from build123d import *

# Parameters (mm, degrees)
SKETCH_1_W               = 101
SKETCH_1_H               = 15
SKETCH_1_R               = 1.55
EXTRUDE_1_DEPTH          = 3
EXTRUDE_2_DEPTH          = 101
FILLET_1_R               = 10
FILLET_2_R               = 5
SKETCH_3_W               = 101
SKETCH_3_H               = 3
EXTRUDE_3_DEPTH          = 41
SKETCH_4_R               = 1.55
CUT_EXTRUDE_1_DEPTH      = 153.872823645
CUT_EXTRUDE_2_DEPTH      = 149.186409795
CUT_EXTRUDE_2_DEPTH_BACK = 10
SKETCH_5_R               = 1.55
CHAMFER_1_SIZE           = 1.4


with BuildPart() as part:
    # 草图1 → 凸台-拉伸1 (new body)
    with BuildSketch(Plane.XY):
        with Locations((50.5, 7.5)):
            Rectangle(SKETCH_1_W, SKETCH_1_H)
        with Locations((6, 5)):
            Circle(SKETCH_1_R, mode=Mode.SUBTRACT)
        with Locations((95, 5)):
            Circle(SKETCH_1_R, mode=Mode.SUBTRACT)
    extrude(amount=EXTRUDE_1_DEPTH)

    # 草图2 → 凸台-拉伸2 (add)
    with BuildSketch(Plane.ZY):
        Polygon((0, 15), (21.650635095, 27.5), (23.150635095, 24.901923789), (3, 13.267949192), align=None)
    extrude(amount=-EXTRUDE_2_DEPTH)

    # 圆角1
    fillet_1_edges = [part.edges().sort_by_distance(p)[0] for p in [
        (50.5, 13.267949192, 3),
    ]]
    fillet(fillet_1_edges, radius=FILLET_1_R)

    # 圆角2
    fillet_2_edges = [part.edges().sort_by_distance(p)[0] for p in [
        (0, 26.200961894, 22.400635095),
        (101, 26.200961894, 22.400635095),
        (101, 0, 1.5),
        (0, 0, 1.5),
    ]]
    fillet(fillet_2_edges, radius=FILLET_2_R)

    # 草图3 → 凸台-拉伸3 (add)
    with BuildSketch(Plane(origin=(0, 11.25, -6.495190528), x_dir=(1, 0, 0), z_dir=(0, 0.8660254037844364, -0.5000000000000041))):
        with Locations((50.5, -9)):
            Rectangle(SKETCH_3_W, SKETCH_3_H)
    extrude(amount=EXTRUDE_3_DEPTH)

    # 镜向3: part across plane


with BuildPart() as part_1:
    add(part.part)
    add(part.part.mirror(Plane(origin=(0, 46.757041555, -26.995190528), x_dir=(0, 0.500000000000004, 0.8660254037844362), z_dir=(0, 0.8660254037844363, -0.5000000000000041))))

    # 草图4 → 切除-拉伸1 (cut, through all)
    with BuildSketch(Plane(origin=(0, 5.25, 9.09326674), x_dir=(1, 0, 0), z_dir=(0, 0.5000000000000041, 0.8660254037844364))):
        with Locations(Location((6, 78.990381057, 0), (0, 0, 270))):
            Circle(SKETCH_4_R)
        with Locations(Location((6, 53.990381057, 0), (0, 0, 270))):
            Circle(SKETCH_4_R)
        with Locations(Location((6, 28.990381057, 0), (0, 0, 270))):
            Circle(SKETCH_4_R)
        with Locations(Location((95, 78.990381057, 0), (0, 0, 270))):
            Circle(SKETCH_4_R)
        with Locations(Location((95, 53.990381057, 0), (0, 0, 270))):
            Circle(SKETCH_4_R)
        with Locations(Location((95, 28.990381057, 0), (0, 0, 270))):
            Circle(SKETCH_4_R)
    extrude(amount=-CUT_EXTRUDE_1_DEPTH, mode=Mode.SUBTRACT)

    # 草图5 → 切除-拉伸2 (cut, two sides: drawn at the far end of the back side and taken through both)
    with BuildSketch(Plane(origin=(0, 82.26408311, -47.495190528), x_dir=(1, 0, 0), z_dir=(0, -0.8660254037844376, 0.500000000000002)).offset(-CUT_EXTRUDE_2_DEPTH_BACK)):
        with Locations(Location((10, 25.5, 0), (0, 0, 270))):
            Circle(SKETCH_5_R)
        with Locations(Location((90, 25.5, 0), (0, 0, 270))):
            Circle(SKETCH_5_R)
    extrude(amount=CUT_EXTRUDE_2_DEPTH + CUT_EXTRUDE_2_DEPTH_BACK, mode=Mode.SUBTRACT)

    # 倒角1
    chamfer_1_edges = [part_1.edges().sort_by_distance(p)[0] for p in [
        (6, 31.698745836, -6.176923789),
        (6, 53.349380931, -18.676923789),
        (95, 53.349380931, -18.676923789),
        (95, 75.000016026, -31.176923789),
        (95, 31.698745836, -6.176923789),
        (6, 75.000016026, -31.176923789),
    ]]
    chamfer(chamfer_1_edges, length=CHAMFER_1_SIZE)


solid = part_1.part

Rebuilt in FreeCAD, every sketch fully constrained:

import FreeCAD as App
import Part
import Sketcher
Q = App.Units.Quantity


def edges_at(feature, points):
    """Names of the edges that pass closest to the given points."""
    edges = feature.Shape.Edges
    near = lambda p: min(range(len(edges)), key=lambda i: edges[i].distToShape(Part.Vertex(*p))[0])
    return sorted({f"Edge{near(p) + 1}" for p in points})

doc = App.newDocument("Part")
params = doc.addObject("Spreadsheet::Sheet", "Params")
for row, (alias, value) in enumerate([
    ("sketch1_diameter", "3.1 mm"),
    ("sketch1_width", "101 mm"),
    ("sketch1_height", "15 mm"),
    ("pad1_length", "3 mm"),
    ("sketch2_length", "25 mm"),
    ("sketch2_length2", "3 mm"),
    ("pad2_length", "101 mm"),
    ("fillet_radius", "10 mm"),
    ("fillet2_radius", "5 mm"),
    ("sketch3_width", "101 mm"),
    ("sketch3_height", "3 mm"),
    ("pad3_length", "41 mm"),
    ("sketch4_diameter", "3.1 mm"),
    ("sketch5_diameter", "3.1 mm"),
    ("chamfer_size", "1.4 mm"),
], start=1):
    params.set(f"A{row}", alias)
    params.set(f"B{row}", "=" + value)
    params.setAlias(f"B{row}", alias)

body = doc.addObject("PartDesign::Body", "Body")

# Sketch on XY plane
sketch1 = doc.addObject("Sketcher::SketchObject", "Sketch")
body.addObject(sketch1)
sketch1.AttachmentSupport = (doc.XY_Plane, [""])
sketch1.MapMode = "FlatFace"
sketch1.addGeometry([
    Part.LineSegment(App.Vector(0, 15, 0), App.Vector(0, 0, 0)),  # 0
    Part.LineSegment(App.Vector(0, 0, 0), App.Vector(101, 0, 0)),  # 1
    Part.LineSegment(App.Vector(101, 0, 0), App.Vector(101, 15, 0)),  # 2
    Part.LineSegment(App.Vector(101, 15, 0), App.Vector(0, 15, 0)),  # 3
    Part.Circle(App.Vector(6, 5, 0), App.Vector(0, 0, 1), 1.55),  # 4
    Part.Circle(App.Vector(95, 5, 0), App.Vector(0, 0, 1), 1.55),  # 5
], False)
sketch1.addConstraint([
    Sketcher.Constraint("Coincident", 0, 2, 1, 1),
    Sketcher.Constraint("Coincident", 1, 2, 2, 1),
    Sketcher.Constraint("Coincident", 2, 2, 3, 1),
    Sketcher.Constraint("Coincident", 3, 2, 0, 1),
    Sketcher.Constraint("Vertical", 0),
    Sketcher.Constraint("Horizontal", 1),
    Sketcher.Constraint("Vertical", 2),
    Sketcher.Constraint("Horizontal", 3),
    Sketcher.Constraint("Coincident", 0, 2, -1, 1),
    Sketcher.Constraint("Equal", 4, 5),
    Sketcher.Constraint("Horizontal", 4, 3, 5, 3),
    Sketcher.Constraint("Diameter", 4, Q("3.1 mm")),
    Sketcher.Constraint("DistanceX", 1, 1, 1, 2, Q("101 mm")),
    Sketcher.Constraint("DistanceY", 0, 2, 0, 1, Q("15 mm")),
    Sketcher.Constraint("DistanceX", -1, 1, 4, 3, Q("6 mm")),
    Sketcher.Constraint("DistanceY", -1, 1, 4, 3, Q("5 mm")),
    Sketcher.Constraint("DistanceX", -1, 1, 5, 3, Q("95 mm")),
])
sketch1.setExpression("Constraints[11]", "Params.sketch1_diameter")
sketch1.setExpression("Constraints[12]", "Params.sketch1_width")
sketch1.setExpression("Constraints[13]", "Params.sketch1_height")
pad1 = doc.addObject("PartDesign::Pad", "Pad")
body.addObject(pad1)
pad1.Profile = sketch1
pad1.setExpression("Length", "Params.pad1_length")

# Sketch on YZ plane
sketch2 = doc.addObject("Sketcher::SketchObject", "Sketch001")
body.addObject(sketch2)
sketch2.AttachmentSupport = (doc.YZ_Plane, [""])
sketch2.MapMode = "FlatFace"
sketch2.addGeometry([
    Part.LineSegment(App.Vector(27.5, 21.650635, 0), App.Vector(15, 0, 0)),
    Part.LineSegment(App.Vector(15, 0, 0), App.Vector(13.267949, 3, 0)),
    Part.LineSegment(App.Vector(13.267949, 3, 0), App.Vector(24.901924, 23.150635, 0)),
    Part.LineSegment(App.Vector(24.901924, 23.150635, 0), App.Vector(27.5, 21.650635, 0)),
], False)
sketch2.addConstraint([
    Sketcher.Constraint("Coincident", 0, 2, 1, 1),
    Sketcher.Constraint("Coincident", 1, 2, 2, 1),
    Sketcher.Constraint("Coincident", 2, 2, 3, 1),
    Sketcher.Constraint("Coincident", 3, 2, 0, 1),
    Sketcher.Constraint("PointOnObject", 0, 2, -1),
    Sketcher.Constraint("Parallel", 0, 2),
    Sketcher.Constraint("Perpendicular", 2, 3),
    Sketcher.Constraint("Angle", 0, Q("-120 deg")),
    Sketcher.Constraint("Angle", 1, Q("120 deg")),
    Sketcher.Constraint("Distance", 0, Q("25 mm")),
    Sketcher.Constraint("Distance", 3, Q("3 mm")),
    Sketcher.Constraint("DistanceX", -1, 1, 0, 2, Q("15 mm")),
])
sketch2.setExpression("Constraints[9]", "Params.sketch2_length")
sketch2.setExpression("Constraints[10]", "Params.sketch2_length2")
pad2 = doc.addObject("PartDesign::Pad", "Pad001")
body.addObject(pad2)
pad2.Profile = sketch2
pad2.setExpression("Length", "Params.pad2_length")
doc.recompute()

fillet = doc.addObject("PartDesign::Fillet", "Fillet")
body.addObject(fillet)
fillet.Base = (pad2, edges_at(pad2, [(50.5, 13.268, 3)]))
fillet.setExpression("Radius", "Params.fillet_radius")
doc.recompute()

fillet2 = doc.addObject("PartDesign::Fillet", "Fillet001")
body.addObject(fillet2)
fillet2.Base = (fillet, edges_at(fillet, [
    (0, 26.201, 22.401),
    (101, 26.201, 22.401),
    (101, 0, 1.5),
    (0, 0, 1.5),
]))
fillet2.setExpression("Radius", "Params.fillet2_radius")

# Sketch on an angled plane
sketch3 = doc.addObject("Sketcher::SketchObject", "Sketch002")
body.addObject(sketch3)
sketch3.Placement = App.Placement(App.Vector(0, 11.25, -6.495191), App.Rotation(App.Vector(1, 0, 0), App.Vector(0, -0.5, -0.866025404), App.Vector(0, 0.866025404, -0.5), "ZXY"))
sketch3.addGeometry([
    Part.LineSegment(App.Vector(0, -7.5, 0), App.Vector(0, -10.5, 0)),
    Part.LineSegment(App.Vector(0, -10.5, 0), App.Vector(101, -10.5, 0)),
    Part.LineSegment(App.Vector(101, -10.5, 0), App.Vector(101, -7.5, 0)),
    Part.LineSegment(App.Vector(101, -7.5, 0), App.Vector(0, -7.5, 0)),
], False)
sketch3.addConstraint([
    Sketcher.Constraint("Coincident", 0, 2, 1, 1),
    Sketcher.Constraint("Coincident", 1, 2, 2, 1),
    Sketcher.Constraint("Coincident", 2, 2, 3, 1),
    Sketcher.Constraint("Coincident", 3, 2, 0, 1),
    Sketcher.Constraint("Vertical", 0),
    Sketcher.Constraint("Horizontal", 1),
    Sketcher.Constraint("Vertical", 2),
    Sketcher.Constraint("Horizontal", 3),
    Sketcher.Constraint("PointOnObject", 0, 2, -2),
    Sketcher.Constraint("DistanceX", 1, 1, 1, 2, Q("101 mm")),
    Sketcher.Constraint("DistanceY", 0, 2, 0, 1, Q("3 mm")),
    Sketcher.Constraint("DistanceY", 0, 2, -1, 1, Q("10.5 mm")),
])
sketch3.setExpression("Constraints[9]", "Params.sketch3_width")
sketch3.setExpression("Constraints[10]", "Params.sketch3_height")
pad3 = doc.addObject("PartDesign::Pad", "Pad002")
body.addObject(pad3)
pad3.Profile = sketch3
pad3.setExpression("Length", "Params.pad3_length")
body2 = doc.addObject("PartDesign::Body", "Body001")
doc.recompute()

body2.BaseFeature = body
doc.recompute()

mirroring = doc.addObject("Part::Mirroring", "Mirroring")
mirroring.Source = body
mirroring.Base = App.Vector(0, 46.757042, -26.995191)
mirroring.Normal = App.Vector(0, 0.866025404, -0.5)
body3 = doc.addObject("PartDesign::Body", "Body002")
body3.BaseFeature = mirroring
boolean = doc.addObject("PartDesign::Boolean", "Boolean")
body2.addObject(boolean)
boolean.Type = "Fuse"
boolean.addObjects([body3])
doc.recompute()

# Sketch on an angled plane
sketch4 = doc.addObject("Sketcher::SketchObject", "Sketch003")
body2.addObject(sketch4)
sketch4.Placement = App.Placement(App.Vector(0, 5.25, 9.093267), App.Rotation(App.Vector(1, 0, 0), App.Vector(0, 0.866025404, -0.5), App.Vector(0, 0.5, 0.866025404), "ZXY"))
sketch4.addGeometry([
    Part.Circle(App.Vector(6, 78.990381, 0), App.Vector(0, 0, 1), 1.55),  # 0
    Part.Circle(App.Vector(6, 53.990381, 0), App.Vector(0, 0, 1), 1.55),  # 1
    Part.Circle(App.Vector(6, 28.990381, 0), App.Vector(0, 0, 1), 1.55),  # 2
    Part.Circle(App.Vector(95, 78.990381, 0), App.Vector(0, 0, 1), 1.55),  # 3
    Part.Circle(App.Vector(95, 53.990381, 0), App.Vector(0, 0, 1), 1.55),  # 4
    Part.Circle(App.Vector(95, 28.990381, 0), App.Vector(0, 0, 1), 1.55),  # 5
], False)
sketch4.addConstraint([
    Sketcher.Constraint("Equal", 0, 1),
    Sketcher.Constraint("Equal", 1, 2),
    Sketcher.Constraint("Equal", 2, 3),
    Sketcher.Constraint("Equal", 3, 4),
    Sketcher.Constraint("Equal", 4, 5),
    Sketcher.Constraint("Horizontal", 0, 3, 3, 3),
    Sketcher.Constraint("Horizontal", 1, 3, 4, 3),
    Sketcher.Constraint("Horizontal", 2, 3, 5, 3),
    Sketcher.Constraint("Vertical", 0, 3, 1, 3),
    Sketcher.Constraint("Vertical", 1, 3, 2, 3),
    Sketcher.Constraint("Vertical", 3, 3, 4, 3),
    Sketcher.Constraint("Vertical", 4, 3, 5, 3),
    Sketcher.Constraint("Diameter", 0, Q("3.1 mm")),
    Sketcher.Constraint("DistanceX", -1, 1, 0, 3, Q("6 mm")),
    Sketcher.Constraint("DistanceX", -1, 1, 3, 3, Q("95 mm")),
    Sketcher.Constraint("DistanceY", 1, 3, 0, 3, Q("25 mm")),
    Sketcher.Constraint("DistanceY", 2, 3, 1, 3, Q("25 mm")),
    Sketcher.Constraint("DistanceY", -1, 1, 0, 3, Q("78.990381 mm")),
])
sketch4.setExpression("Constraints[12]", "Params.sketch4_diameter")
pocket1 = doc.addObject("PartDesign::Pocket", "Pocket")
body2.addObject(pocket1)
pocket1.Profile = sketch4
pocket1.Type = "ThroughAll"

# Sketch on an angled plane
sketch5 = doc.addObject("Sketcher::SketchObject", "Sketch004")
body2.addObject(sketch5)
sketch5.Placement = App.Placement(App.Vector(0, 82.264083, -47.495191), App.Rotation(App.Vector(1, 0, 0), App.Vector(0, 0.5, 0.866025404), App.Vector(0, -0.866025404, 0.5), "ZXY"))
sketch5.addGeometry([
    Part.Circle(App.Vector(10, 25.5, 0), App.Vector(0, 0, 1), 1.55),
    Part.Circle(App.Vector(90, 25.5, 0), App.Vector(0, 0, 1), 1.55),
], False)
sketch5.addConstraint([
    Sketcher.Constraint("Equal", 0, 1),
    Sketcher.Constraint("Horizontal", 0, 3, 1, 3),
    Sketcher.Constraint("Diameter", 0, Q("3.1 mm")),
    Sketcher.Constraint("DistanceX", -1, 1, 0, 3, Q("10 mm")),
    Sketcher.Constraint("DistanceX", -1, 1, 1, 3, Q("90 mm")),
    Sketcher.Constraint("DistanceY", -1, 1, 0, 3, Q("25.5 mm")),
])
sketch5.setExpression("Constraints[2]", "Params.sketch5_diameter")
pocket2 = doc.addObject("PartDesign::Pocket", "Pocket001")
body2.addObject(pocket2)
pocket2.Profile = sketch5
pocket2.Type = "ThroughAll"
pocket2.Midplane = True
doc.recompute()

chamfer = doc.addObject("PartDesign::Chamfer", "Chamfer")
body2.addObject(chamfer)
chamfer.Base = (pocket2, edges_at(pocket2, [
    (6, 31.699, -6.177),
    (6, 53.349, -18.677),
    (95, 53.349, -18.677),
    (95, 75, -31.177),
    (95, 31.699, -6.177),
    (6, 75, -31.177),
]))
chamfer.setExpression("Size", "Params.chamfer_size")
mirroring.Visibility = False

doc.recompute()
